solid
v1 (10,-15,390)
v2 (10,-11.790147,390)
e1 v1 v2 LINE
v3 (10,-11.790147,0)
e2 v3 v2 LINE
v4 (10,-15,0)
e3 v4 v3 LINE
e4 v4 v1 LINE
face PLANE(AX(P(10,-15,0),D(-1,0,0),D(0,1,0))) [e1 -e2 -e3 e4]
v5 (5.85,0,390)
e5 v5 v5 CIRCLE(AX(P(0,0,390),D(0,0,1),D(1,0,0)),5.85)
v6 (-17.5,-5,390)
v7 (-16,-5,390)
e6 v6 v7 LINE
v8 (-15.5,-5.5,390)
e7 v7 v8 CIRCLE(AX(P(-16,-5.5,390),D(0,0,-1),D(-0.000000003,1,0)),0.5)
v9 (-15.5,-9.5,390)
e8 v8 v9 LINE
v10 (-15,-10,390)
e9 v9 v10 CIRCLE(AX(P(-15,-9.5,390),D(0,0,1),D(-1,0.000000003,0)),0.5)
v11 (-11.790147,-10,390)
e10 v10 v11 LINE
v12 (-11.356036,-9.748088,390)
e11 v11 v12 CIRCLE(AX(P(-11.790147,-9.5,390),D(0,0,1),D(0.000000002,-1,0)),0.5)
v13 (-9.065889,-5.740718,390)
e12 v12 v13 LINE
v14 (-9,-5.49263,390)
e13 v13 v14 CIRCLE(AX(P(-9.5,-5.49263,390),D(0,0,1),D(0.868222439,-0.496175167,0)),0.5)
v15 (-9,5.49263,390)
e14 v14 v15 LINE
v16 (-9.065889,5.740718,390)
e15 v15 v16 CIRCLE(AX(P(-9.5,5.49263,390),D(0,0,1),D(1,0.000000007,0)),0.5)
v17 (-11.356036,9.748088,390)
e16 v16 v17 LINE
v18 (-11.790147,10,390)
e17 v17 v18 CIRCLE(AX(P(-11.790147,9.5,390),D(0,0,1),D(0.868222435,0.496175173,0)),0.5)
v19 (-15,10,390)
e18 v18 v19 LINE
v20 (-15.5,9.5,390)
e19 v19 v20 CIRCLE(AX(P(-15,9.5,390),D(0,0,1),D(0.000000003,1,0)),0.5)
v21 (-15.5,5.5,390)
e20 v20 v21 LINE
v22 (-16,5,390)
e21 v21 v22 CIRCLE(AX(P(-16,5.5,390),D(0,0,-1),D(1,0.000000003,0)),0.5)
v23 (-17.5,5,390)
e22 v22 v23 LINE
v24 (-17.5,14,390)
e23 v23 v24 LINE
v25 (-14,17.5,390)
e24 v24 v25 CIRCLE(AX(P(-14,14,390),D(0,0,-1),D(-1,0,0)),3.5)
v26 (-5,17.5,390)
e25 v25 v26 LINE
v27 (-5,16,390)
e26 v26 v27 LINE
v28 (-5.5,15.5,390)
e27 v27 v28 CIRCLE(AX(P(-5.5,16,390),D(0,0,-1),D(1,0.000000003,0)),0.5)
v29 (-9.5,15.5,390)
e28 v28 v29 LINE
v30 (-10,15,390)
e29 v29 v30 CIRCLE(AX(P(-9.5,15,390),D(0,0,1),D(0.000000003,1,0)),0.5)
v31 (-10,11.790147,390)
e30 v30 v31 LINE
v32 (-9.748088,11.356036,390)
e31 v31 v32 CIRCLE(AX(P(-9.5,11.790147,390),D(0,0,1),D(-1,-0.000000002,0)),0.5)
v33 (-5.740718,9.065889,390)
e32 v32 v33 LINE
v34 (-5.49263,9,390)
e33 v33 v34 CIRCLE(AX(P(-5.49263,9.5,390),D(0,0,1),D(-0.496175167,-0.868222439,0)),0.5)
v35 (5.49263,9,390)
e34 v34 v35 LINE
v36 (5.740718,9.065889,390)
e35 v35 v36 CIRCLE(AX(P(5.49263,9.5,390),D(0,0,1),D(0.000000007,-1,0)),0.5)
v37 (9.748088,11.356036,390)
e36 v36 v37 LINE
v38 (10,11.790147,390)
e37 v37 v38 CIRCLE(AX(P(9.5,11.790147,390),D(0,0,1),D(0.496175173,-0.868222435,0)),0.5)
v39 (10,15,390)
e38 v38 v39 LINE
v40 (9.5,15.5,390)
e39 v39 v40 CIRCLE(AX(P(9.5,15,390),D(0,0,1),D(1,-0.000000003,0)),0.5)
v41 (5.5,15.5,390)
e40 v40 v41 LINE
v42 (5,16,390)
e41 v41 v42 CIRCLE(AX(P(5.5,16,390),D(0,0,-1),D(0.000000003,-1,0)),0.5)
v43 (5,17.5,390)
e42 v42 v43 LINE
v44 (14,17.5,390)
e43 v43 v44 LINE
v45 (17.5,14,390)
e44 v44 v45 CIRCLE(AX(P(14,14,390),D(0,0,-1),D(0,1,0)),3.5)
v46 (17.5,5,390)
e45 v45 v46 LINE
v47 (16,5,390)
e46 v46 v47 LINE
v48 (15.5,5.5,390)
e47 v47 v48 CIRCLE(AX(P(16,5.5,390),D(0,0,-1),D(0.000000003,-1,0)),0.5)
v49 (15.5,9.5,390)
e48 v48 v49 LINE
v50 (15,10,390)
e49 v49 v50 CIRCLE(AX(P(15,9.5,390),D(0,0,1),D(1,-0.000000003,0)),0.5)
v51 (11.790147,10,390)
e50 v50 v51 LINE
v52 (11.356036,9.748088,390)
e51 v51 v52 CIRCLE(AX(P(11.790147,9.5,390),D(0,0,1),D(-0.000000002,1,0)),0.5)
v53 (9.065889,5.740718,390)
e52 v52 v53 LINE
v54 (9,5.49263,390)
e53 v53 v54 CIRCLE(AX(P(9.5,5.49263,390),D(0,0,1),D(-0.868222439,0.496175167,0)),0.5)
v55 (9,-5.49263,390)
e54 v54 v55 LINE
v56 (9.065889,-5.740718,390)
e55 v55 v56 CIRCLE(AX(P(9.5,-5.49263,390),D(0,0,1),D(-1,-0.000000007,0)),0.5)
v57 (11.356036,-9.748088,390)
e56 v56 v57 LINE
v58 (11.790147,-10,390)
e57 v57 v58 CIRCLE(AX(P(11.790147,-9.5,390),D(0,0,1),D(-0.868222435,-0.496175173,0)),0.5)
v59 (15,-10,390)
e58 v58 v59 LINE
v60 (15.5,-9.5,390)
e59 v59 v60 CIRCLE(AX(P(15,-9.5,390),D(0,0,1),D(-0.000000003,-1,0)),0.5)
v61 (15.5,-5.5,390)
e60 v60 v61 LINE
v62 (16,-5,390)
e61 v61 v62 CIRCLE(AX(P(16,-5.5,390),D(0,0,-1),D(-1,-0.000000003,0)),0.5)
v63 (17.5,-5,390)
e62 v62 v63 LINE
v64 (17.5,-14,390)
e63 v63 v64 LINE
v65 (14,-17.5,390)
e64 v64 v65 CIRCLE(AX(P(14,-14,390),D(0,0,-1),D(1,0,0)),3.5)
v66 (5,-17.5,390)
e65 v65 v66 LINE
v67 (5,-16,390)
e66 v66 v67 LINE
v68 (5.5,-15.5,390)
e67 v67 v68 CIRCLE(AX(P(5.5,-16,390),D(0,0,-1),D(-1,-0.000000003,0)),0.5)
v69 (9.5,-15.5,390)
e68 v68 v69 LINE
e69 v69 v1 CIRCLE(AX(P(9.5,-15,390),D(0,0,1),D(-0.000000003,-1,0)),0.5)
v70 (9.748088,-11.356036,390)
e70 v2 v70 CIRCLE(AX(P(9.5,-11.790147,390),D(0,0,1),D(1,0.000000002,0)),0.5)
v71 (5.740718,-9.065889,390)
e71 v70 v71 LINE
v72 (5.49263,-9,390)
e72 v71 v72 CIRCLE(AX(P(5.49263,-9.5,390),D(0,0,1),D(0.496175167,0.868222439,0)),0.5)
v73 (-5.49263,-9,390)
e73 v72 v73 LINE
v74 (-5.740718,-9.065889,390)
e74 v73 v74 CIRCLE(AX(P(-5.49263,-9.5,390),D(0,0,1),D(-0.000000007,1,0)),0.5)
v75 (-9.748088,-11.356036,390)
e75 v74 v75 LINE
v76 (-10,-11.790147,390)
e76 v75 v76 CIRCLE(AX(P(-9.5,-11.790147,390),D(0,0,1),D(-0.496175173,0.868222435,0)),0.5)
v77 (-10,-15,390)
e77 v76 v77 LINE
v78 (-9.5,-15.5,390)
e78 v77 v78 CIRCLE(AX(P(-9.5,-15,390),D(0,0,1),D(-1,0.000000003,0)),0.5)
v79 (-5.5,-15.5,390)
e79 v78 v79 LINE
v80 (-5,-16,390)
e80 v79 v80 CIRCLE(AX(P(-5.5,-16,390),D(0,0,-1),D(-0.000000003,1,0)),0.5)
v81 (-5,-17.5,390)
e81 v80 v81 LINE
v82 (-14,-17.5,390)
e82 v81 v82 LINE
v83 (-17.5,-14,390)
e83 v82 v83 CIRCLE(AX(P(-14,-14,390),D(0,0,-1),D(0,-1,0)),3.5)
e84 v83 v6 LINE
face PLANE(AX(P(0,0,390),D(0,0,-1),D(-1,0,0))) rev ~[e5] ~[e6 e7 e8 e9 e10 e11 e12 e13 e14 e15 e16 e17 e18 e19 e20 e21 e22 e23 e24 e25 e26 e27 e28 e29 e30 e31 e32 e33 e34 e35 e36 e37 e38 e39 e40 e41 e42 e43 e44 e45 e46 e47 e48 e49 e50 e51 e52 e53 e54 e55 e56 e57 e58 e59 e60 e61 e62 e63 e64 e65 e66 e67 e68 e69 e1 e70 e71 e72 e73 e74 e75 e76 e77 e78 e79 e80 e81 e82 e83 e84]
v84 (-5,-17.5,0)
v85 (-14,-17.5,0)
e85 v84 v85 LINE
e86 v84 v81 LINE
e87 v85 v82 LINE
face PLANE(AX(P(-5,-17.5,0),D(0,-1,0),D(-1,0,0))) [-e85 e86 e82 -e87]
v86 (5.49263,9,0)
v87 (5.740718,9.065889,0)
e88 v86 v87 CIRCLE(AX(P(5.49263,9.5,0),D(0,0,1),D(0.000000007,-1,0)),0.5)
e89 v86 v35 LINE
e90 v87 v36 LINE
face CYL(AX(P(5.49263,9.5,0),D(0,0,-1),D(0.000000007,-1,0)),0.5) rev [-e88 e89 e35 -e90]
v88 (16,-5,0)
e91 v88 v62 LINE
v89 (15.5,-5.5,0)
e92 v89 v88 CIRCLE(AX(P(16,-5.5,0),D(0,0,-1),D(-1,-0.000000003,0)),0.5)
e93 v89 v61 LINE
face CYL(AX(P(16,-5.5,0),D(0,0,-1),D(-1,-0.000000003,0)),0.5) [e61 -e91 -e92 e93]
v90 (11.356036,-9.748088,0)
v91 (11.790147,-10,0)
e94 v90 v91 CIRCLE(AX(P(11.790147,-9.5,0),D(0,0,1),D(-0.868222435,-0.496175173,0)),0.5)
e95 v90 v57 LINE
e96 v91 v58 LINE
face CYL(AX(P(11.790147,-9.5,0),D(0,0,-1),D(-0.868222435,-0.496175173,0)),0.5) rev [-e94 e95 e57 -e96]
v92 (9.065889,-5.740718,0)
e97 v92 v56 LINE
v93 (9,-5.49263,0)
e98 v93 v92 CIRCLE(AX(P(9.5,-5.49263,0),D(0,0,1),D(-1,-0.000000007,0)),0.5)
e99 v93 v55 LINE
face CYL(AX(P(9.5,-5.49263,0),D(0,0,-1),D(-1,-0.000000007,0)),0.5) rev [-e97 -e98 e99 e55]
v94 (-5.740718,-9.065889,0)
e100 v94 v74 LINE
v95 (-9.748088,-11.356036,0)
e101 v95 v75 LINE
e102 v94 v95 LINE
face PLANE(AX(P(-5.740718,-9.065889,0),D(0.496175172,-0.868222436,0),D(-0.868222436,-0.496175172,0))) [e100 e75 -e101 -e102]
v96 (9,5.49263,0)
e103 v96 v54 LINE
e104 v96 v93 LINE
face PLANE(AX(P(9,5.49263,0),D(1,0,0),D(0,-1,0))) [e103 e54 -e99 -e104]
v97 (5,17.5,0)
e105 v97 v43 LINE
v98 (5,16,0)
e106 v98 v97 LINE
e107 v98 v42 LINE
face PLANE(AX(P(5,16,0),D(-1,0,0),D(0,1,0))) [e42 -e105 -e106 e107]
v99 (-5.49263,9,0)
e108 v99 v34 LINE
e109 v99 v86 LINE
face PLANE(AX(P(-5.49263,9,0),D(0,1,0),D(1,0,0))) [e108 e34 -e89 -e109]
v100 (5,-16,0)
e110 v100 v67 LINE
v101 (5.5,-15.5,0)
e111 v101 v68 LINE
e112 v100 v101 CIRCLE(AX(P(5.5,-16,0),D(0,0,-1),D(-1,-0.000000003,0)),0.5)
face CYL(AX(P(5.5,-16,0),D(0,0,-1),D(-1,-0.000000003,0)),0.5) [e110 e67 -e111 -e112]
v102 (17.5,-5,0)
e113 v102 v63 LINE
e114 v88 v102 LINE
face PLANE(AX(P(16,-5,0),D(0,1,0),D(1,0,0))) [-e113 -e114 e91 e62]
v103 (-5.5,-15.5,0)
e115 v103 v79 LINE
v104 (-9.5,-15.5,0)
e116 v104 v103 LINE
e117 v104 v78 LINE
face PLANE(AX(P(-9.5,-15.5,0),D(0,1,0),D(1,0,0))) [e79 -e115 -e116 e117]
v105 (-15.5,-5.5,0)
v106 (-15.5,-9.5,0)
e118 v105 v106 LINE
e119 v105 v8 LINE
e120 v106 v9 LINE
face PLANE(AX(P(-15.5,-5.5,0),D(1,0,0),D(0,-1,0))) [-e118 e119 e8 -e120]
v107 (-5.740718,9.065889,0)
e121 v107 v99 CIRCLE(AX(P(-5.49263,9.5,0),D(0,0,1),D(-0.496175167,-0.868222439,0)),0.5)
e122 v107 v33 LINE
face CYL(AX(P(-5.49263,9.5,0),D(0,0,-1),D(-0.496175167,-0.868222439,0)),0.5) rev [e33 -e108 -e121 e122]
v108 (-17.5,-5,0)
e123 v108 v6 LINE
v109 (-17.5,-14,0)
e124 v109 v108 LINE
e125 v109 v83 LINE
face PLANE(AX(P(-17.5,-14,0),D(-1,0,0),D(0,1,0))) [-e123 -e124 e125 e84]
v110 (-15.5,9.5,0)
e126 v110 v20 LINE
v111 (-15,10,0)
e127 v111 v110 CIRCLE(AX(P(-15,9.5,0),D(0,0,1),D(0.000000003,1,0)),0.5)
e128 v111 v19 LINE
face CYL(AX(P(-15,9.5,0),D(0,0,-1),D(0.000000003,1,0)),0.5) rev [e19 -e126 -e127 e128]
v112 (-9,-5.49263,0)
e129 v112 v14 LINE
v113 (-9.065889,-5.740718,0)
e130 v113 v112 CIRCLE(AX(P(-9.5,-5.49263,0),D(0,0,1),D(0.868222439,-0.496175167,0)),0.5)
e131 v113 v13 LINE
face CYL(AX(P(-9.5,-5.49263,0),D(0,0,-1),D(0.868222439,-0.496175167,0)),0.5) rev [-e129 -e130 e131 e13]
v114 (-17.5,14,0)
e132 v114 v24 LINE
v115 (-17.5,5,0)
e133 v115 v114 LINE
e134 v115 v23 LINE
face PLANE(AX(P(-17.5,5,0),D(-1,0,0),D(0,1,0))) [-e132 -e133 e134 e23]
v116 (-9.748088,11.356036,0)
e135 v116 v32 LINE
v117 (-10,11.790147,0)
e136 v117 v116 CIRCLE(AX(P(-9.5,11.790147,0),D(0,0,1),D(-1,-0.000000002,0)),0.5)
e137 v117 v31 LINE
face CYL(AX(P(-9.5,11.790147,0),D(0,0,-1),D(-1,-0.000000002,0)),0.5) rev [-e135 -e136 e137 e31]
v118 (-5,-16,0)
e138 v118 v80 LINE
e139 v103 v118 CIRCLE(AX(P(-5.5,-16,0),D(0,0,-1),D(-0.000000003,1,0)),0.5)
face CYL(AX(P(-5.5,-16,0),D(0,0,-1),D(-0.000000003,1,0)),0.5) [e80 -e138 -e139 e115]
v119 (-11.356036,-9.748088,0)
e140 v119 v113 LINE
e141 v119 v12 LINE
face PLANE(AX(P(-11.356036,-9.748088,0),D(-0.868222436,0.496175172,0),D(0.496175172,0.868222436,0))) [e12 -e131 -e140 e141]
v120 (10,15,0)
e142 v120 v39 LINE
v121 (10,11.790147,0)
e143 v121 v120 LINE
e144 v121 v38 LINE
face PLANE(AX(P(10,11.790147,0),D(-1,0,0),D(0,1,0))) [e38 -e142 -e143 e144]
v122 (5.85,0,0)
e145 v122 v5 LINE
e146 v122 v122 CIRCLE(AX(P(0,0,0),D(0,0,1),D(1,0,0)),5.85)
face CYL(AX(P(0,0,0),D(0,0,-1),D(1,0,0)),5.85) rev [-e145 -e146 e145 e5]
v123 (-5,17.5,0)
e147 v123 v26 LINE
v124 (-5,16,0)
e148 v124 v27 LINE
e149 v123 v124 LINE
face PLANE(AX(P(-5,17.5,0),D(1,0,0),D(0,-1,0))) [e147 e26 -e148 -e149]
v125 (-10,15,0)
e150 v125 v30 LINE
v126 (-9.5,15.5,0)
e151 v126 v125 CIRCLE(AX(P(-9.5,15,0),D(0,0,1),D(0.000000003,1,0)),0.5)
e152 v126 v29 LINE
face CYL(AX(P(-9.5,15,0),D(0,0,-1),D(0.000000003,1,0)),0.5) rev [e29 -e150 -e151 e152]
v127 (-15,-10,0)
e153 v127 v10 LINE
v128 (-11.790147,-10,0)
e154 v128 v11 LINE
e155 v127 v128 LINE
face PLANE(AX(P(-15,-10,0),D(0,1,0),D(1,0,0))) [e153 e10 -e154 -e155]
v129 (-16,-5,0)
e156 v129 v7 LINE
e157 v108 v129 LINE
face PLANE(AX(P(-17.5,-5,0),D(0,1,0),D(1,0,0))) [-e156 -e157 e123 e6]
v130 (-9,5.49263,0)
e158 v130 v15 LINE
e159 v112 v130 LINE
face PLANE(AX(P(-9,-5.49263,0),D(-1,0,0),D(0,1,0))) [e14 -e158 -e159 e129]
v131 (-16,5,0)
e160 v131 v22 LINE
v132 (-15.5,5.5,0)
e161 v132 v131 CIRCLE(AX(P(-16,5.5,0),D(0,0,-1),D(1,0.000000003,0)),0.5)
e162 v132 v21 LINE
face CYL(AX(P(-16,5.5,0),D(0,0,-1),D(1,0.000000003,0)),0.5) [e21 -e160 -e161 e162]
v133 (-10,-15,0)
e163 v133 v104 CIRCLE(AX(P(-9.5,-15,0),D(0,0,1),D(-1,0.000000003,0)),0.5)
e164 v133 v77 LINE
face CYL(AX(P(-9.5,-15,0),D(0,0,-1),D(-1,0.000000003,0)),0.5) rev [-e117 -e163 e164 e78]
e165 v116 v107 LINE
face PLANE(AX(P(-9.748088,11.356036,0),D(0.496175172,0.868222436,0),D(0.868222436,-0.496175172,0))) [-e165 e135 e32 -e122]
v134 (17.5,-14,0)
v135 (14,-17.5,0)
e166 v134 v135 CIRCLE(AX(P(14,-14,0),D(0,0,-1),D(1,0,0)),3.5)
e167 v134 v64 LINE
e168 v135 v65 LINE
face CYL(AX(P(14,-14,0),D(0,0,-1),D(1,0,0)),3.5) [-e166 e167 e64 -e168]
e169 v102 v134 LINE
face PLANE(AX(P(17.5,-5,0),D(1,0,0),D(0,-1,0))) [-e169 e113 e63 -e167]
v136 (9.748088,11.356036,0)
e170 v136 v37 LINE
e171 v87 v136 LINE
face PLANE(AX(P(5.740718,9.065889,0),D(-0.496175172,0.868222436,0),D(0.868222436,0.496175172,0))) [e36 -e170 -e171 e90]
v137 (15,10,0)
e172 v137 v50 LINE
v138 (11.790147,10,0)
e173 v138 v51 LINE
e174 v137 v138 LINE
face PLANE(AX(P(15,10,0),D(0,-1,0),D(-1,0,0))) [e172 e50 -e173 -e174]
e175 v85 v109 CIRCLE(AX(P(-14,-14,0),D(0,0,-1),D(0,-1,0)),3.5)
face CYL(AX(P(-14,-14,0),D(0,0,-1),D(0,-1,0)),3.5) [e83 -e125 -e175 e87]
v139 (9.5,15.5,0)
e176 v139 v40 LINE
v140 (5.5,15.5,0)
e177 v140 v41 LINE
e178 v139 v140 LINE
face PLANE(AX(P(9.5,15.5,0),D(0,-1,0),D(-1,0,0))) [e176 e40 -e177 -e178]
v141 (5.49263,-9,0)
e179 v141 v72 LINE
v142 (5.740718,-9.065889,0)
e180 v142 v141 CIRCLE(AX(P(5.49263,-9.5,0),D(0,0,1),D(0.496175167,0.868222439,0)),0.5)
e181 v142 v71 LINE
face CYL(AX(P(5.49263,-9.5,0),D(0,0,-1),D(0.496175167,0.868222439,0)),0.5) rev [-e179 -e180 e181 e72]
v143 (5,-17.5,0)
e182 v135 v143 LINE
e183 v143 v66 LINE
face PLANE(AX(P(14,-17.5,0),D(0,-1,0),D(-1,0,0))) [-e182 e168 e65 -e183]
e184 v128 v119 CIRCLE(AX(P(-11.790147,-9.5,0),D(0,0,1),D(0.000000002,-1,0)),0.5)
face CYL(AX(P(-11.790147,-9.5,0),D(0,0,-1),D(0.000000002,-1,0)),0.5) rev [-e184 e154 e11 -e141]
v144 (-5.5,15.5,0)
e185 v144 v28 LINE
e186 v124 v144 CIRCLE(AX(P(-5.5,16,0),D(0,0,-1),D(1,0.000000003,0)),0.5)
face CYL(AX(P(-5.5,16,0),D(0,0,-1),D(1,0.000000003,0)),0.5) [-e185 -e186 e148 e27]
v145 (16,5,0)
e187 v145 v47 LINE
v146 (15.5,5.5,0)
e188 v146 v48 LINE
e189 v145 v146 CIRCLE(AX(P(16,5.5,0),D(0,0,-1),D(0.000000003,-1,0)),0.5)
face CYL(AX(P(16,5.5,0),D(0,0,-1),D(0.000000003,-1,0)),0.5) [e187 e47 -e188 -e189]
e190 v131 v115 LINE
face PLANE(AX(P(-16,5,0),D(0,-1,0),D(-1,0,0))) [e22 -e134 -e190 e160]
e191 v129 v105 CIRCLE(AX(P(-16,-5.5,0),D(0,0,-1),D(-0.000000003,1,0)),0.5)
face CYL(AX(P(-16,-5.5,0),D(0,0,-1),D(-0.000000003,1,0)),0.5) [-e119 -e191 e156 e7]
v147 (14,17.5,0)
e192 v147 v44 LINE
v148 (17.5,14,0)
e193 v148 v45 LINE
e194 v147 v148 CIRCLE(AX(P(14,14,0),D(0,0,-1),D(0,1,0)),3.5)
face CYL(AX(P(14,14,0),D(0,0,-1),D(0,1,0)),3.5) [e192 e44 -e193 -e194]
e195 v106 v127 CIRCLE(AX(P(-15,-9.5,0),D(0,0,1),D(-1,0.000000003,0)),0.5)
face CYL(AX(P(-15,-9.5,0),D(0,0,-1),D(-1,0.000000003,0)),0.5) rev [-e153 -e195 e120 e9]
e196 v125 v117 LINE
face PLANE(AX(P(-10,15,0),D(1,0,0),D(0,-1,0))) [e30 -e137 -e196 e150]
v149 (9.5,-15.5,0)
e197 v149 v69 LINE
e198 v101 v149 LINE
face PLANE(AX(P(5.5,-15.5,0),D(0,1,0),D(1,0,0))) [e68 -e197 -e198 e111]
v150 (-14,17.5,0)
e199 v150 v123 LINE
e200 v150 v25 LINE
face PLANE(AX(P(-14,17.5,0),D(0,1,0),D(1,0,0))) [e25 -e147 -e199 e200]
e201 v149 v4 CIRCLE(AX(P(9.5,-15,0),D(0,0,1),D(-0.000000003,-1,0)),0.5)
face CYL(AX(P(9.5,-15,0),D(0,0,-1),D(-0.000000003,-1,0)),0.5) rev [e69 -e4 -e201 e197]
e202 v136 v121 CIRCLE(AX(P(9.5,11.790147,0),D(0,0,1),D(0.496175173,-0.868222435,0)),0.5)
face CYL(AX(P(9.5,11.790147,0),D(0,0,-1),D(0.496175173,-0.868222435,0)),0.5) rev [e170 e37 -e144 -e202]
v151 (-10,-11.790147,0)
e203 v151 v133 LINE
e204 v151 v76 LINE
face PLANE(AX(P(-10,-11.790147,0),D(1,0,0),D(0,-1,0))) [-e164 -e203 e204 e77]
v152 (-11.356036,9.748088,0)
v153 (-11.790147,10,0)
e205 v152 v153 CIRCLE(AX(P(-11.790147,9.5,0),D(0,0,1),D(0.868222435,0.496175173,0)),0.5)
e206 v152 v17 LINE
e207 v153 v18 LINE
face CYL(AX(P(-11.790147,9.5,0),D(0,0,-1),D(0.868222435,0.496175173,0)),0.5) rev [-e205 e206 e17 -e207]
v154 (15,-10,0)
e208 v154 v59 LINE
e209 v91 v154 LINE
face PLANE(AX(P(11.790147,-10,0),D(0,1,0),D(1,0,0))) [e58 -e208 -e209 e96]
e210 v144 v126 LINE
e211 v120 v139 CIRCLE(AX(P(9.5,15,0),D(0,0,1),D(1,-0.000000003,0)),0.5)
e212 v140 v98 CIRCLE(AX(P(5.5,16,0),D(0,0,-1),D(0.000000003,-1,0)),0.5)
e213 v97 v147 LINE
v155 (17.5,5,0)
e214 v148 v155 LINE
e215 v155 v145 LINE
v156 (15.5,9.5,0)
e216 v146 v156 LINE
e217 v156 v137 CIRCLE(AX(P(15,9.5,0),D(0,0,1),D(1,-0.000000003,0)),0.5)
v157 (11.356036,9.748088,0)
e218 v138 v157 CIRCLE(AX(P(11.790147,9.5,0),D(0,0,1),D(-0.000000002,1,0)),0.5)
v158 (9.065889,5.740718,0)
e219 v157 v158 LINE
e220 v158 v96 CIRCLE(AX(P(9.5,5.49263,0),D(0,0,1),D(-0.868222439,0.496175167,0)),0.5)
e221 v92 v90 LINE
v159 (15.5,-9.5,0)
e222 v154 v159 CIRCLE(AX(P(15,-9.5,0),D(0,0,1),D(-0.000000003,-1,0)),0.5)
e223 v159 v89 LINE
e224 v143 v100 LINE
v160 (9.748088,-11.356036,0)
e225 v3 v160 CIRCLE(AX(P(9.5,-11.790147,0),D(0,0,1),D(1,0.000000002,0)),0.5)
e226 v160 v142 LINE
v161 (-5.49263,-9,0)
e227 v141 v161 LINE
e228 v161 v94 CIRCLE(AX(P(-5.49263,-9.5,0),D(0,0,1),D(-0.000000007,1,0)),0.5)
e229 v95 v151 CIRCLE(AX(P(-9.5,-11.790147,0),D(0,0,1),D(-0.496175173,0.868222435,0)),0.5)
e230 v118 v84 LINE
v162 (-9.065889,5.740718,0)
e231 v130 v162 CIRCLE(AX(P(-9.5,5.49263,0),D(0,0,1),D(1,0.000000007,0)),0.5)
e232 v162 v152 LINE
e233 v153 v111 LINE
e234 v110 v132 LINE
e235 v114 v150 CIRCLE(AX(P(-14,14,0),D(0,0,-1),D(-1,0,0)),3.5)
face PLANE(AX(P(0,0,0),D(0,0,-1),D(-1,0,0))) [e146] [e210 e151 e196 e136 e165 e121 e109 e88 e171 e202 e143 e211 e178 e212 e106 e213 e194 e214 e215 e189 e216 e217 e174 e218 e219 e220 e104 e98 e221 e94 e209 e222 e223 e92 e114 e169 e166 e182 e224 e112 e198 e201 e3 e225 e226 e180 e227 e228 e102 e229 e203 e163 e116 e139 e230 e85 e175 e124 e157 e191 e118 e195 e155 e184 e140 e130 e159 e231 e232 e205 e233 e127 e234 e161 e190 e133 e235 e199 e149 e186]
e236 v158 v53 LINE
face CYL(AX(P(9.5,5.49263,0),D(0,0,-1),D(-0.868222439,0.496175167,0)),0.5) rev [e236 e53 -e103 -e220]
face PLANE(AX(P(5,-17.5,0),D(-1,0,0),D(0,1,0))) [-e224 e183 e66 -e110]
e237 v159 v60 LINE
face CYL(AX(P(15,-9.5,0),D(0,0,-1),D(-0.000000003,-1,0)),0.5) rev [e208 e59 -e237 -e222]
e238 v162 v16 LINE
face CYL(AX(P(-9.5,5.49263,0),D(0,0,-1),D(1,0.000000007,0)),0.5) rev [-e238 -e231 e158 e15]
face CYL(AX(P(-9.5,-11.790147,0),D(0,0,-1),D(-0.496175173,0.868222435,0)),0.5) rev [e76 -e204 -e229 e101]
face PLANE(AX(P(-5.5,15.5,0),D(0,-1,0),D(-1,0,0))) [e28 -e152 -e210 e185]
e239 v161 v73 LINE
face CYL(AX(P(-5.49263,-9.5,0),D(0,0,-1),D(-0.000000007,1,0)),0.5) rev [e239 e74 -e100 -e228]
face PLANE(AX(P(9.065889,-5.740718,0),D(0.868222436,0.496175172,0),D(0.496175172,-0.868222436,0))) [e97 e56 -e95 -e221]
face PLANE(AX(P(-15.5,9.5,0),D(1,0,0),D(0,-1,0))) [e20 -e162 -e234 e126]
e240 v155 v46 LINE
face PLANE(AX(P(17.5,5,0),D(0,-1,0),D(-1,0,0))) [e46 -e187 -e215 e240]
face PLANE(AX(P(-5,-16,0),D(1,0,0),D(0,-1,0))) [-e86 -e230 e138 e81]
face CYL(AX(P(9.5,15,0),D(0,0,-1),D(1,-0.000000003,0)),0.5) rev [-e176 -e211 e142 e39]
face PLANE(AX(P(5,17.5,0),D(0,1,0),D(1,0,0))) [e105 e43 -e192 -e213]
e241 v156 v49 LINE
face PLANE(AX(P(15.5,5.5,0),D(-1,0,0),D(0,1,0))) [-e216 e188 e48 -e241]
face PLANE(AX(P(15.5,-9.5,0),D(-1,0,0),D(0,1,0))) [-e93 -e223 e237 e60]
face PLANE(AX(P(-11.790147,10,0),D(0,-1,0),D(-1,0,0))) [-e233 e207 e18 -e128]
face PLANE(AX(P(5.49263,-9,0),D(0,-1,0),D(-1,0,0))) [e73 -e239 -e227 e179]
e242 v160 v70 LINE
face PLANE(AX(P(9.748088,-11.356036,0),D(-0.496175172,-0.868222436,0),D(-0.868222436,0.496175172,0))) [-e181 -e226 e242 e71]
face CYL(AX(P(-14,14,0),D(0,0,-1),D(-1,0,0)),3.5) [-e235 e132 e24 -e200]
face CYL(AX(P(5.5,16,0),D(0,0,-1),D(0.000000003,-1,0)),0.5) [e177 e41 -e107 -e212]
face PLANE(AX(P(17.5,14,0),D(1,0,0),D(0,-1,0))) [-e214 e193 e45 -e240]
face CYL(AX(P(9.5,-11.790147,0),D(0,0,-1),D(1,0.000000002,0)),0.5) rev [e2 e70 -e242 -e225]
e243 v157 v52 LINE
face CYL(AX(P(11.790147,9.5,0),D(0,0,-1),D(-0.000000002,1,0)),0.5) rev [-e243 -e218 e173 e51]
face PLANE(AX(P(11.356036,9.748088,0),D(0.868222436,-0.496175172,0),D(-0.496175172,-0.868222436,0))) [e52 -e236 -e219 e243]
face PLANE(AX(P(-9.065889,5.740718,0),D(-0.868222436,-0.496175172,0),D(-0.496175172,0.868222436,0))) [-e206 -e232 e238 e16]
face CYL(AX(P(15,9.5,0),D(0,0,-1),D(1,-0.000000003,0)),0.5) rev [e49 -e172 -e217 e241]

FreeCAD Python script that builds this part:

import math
import FreeCAD as App
import Part
import Sketcher
from FreeCAD import Vector

doc = App.newDocument("Part")
body = doc.addObject("PartDesign::Body", "Body")

sketch1 = body.newObject("Sketcher::SketchObject", "Sketch")
sketch1.AttachmentSupport = (doc.getObject("XY_Plane"), [""])
sketch1.MapMode = "FlatFace"
sketch1.addGeometry(Part.LineSegment(Vector(-16, -5, 0), Vector(-17.5, -5, 0)), False)
sketch1.addGeometry(Part.LineSegment(Vector(-17.5, -5, 0), Vector(-17.5, -14, 0)), False)
sketch1.addGeometry(Part.ArcOfCircle(Part.Circle(Vector(-14, -14, 0), Vector(0, 0, 1), 3.5), math.radians(-180), math.radians(-90)), False)
sketch1.addGeometry(Part.LineSegment(Vector(-14, -17.5, 0), Vector(-5, -17.5, 0)), False)
sketch1.addGeometry(Part.LineSegment(Vector(-5, -17.5, 0), Vector(-5, -16, 0)), False)
sketch1.addGeometry(Part.ArcOfCircle(Part.Circle(Vector(-5.5, -16, 0), Vector(0, 0, 1), 0.5), math.radians(0), math.radians(90)), False)
sketch1.addGeometry(Part.LineSegment(Vector(-5.5, -15.5, 0), Vector(-9.5, -15.5, 0)), False)
sketch1.addGeometry(Part.ArcOfCircle(Part.Circle(Vector(-9.5, -15, 0), Vector(0, 0, 1), 0.5), math.radians(180), math.radians(270)), False)
sketch1.addGeometry(Part.LineSegment(Vector(-10, -15, 0), Vector(-10, -11.790147, 0)), False)
sketch1.addGeometry(Part.ArcOfCircle(Part.Circle(Vector(-9.5, -11.790147, 0), Vector(0, 0, 1), 0.5), math.radians(119.747272), math.radians(180)), False)
sketch1.addGeometry(Part.LineSegment(Vector(-9.748088, -11.356036, 0), Vector(-5.740718, -9.065889, 0)), False)
sketch1.addGeometry(Part.ArcOfCircle(Part.Circle(Vector(-5.49263, -9.5, 0), Vector(0, 0, 1), 0.5), math.radians(90), math.radians(119.747272)), False)
sketch1.addGeometry(Part.LineSegment(Vector(-5.49263, -9, 0), Vector(5.49263, -9, 0)), False)
sketch1.addGeometry(Part.ArcOfCircle(Part.Circle(Vector(5.49263, -9.5, 0), Vector(0, 0, 1), 0.5), math.radians(60.252728), math.radians(90)), False)
sketch1.addGeometry(Part.LineSegment(Vector(5.740718, -9.065889, 0), Vector(9.748088, -11.356036, 0)), False)
sketch1.addGeometry(Part.ArcOfCircle(Part.Circle(Vector(9.5, -11.790147, 0), Vector(0, 0, 1), 0.5), math.radians(0), math.radians(60.252728)), False)
sketch1.addGeometry(Part.LineSegment(Vector(10, -11.790147, 0), Vector(10, -15, 0)), False)
sketch1.addGeometry(Part.ArcOfCircle(Part.Circle(Vector(9.5, -15, 0), Vector(0, 0, 1), 0.5), math.radians(-90), math.radians(0)), False)
sketch1.addGeometry(Part.LineSegment(Vector(9.5, -15.5, 0), Vector(5.5, -15.5, 0)), False)
sketch1.addGeometry(Part.ArcOfCircle(Part.Circle(Vector(5.5, -16, 0), Vector(0, 0, 1), 0.5), math.radians(90), math.radians(180)), False)
sketch1.addGeometry(Part.LineSegment(Vector(5, -16, 0), Vector(5, -17.5, 0)), False)
sketch1.addGeometry(Part.LineSegment(Vector(5, -17.5, 0), Vector(14, -17.5, 0)), False)
sketch1.addGeometry(Part.ArcOfCircle(Part.Circle(Vector(14, -14, 0), Vector(0, 0, 1), 3.5), math.radians(-90), math.radians(0)), False)
sketch1.addGeometry(Part.LineSegment(Vector(17.5, -14, 0), Vector(17.5, -5, 0)), False)
sketch1.addGeometry(Part.LineSegment(Vector(17.5, -5, 0), Vector(16, -5, 0)), False)
sketch1.addGeometry(Part.ArcOfCircle(Part.Circle(Vector(16, -5.5, 0), Vector(0, 0, 1), 0.5), math.radians(90), math.radians(180)), False)
sketch1.addGeometry(Part.LineSegment(Vector(15.5, -5.5, 0), Vector(15.5, -9.5, 0)), False)
sketch1.addGeometry(Part.ArcOfCircle(Part.Circle(Vector(15, -9.5, 0), Vector(0, 0, 1), 0.5), math.radians(-90), math.radians(0)), False)
sketch1.addGeometry(Part.LineSegment(Vector(15, -10, 0), Vector(11.790147, -10, 0)), False)
sketch1.addGeometry(Part.ArcOfCircle(Part.Circle(Vector(11.790147, -9.5, 0), Vector(0, 0, 1), 0.5), math.radians(-150.252728), math.radians(-90)), False)
sketch1.addGeometry(Part.LineSegment(Vector(11.356036, -9.748088, 0), Vector(9.065889, -5.740718, 0)), False)
sketch1.addGeometry(Part.ArcOfCircle(Part.Circle(Vector(9.5, -5.49263, 0), Vector(0, 0, 1), 0.5), math.radians(-180), math.radians(-150.252728)), False)
sketch1.addGeometry(Part.LineSegment(Vector(9, -5.49263, 0), Vector(9, 5.49263, 0)), False)
sketch1.addGeometry(Part.ArcOfCircle(Part.Circle(Vector(9.5, 5.49263, 0), Vector(0, 0, 1), 0.5), math.radians(150.252728), math.radians(180)), False)
sketch1.addGeometry(Part.LineSegment(Vector(9.065889, 5.740718, 0), Vector(11.356036, 9.748088, 0)), False)
sketch1.addGeometry(Part.ArcOfCircle(Part.Circle(Vector(11.790147, 9.5, 0), Vector(0, 0, 1), 0.5), math.radians(90), math.radians(150.252728)), False)
sketch1.addGeometry(Part.LineSegment(Vector(11.790147, 10, 0), Vector(15, 10, 0)), False)
sketch1.addGeometry(Part.ArcOfCircle(Part.Circle(Vector(15, 9.5, 0), Vector(0, 0, 1), 0.5), math.radians(0), math.radians(90)), False)
sketch1.addGeometry(Part.LineSegment(Vector(15.5, 9.5, 0), Vector(15.5, 5.5, 0)), False)
sketch1.addGeometry(Part.ArcOfCircle(Part.Circle(Vector(16, 5.5, 0), Vector(0, 0, 1), 0.5), math.radians(180), math.radians(270)), False)
sketch1.addGeometry(Part.LineSegment(Vector(16, 5, 0), Vector(17.5, 5, 0)), False)
sketch1.addGeometry(Part.LineSegment(Vector(17.5, 5, 0), Vector(17.5, 14, 0)), False)
sketch1.addGeometry(Part.ArcOfCircle(Part.Circle(Vector(14, 14, 0), Vector(0, 0, 1), 3.5), math.radians(0), math.radians(90)), False)
sketch1.addGeometry(Part.LineSegment(Vector(14, 17.5, 0), Vector(5, 17.5, 0)), False)
sketch1.addGeometry(Part.LineSegment(Vector(5, 17.5, 0), Vector(5, 16, 0)), False)
sketch1.addGeometry(Part.ArcOfCircle(Part.Circle(Vector(5.5, 16, 0), Vector(0, 0, 1), 0.5), math.radians(180), math.radians(270)), False)
sketch1.addGeometry(Part.LineSegment(Vector(5.5, 15.5, 0), Vector(9.5, 15.5, 0)), False)
sketch1.addGeometry(Part.ArcOfCircle(Part.Circle(Vector(9.5, 15, 0), Vector(0, 0, 1), 0.5), math.radians(0), math.radians(90)), False)
sketch1.addGeometry(Part.LineSegment(Vector(10, 15, 0), Vector(10, 11.790147, 0)), False)
sketch1.addGeometry(Part.ArcOfCircle(Part.Circle(Vector(9.5, 11.790147, 0), Vector(0, 0, 1), 0.5), math.radians(-60.252728), math.radians(0)), False)
sketch1.addGeometry(Part.LineSegment(Vector(9.748088, 11.356036, 0), Vector(5.740718, 9.065889, 0)), False)
sketch1.addGeometry(Part.ArcOfCircle(Part.Circle(Vector(5.49263, 9.5, 0), Vector(0, 0, 1), 0.5), math.radians(-90), math.radians(-60.252728)), False)
sketch1.addGeometry(Part.LineSegment(Vector(5.49263, 9, 0), Vector(-5.49263, 9, 0)), False)
sketch1.addGeometry(Part.ArcOfCircle(Part.Circle(Vector(-5.49263, 9.5, 0), Vector(0, 0, 1), 0.5), math.radians(-119.747272), math.radians(-90)), False)
sketch1.addGeometry(Part.LineSegment(Vector(-5.740718, 9.065889, 0), Vector(-9.748088, 11.356036, 0)), False)
sketch1.addGeometry(Part.ArcOfCircle(Part.Circle(Vector(-9.5, 11.790147, 0), Vector(0, 0, 1), 0.5), math.radians(-180), math.radians(-119.747272)), False)
sketch1.addGeometry(Part.LineSegment(Vector(-10, 11.790147, 0), Vector(-10, 15, 0)), False)
sketch1.addGeometry(Part.ArcOfCircle(Part.Circle(Vector(-9.5, 15, 0), Vector(0, 0, 1), 0.5), math.radians(90), math.radians(180)), False)
sketch1.addGeometry(Part.LineSegment(Vector(-9.5, 15.5, 0), Vector(-5.5, 15.5, 0)), False)
sketch1.addGeometry(Part.ArcOfCircle(Part.Circle(Vector(-5.5, 16, 0), Vector(0, 0, 1), 0.5), math.radians(-90), math.radians(0)), False)
sketch1.addGeometry(Part.LineSegment(Vector(-5, 16, 0), Vector(-5, 17.5, 0)), False)
sketch1.addGeometry(Part.LineSegment(Vector(-5, 17.5, 0), Vector(-14, 17.5, 0)), False)
sketch1.addGeometry(Part.ArcOfCircle(Part.Circle(Vector(-14, 14, 0), Vector(0, 0, 1), 3.5), math.radians(90), math.radians(180)), False)
sketch1.addGeometry(Part.LineSegment(Vector(-17.5, 14, 0), Vector(-17.5, 5, 0)), False)
sketch1.addGeometry(Part.LineSegment(Vector(-17.5, 5, 0), Vector(-16, 5, 0)), False)
sketch1.addGeometry(Part.ArcOfCircle(Part.Circle(Vector(-16, 5.5, 0), Vector(0, 0, 1), 0.5), math.radians(-90), math.radians(0)), False)
sketch1.addGeometry(Part.LineSegment(Vector(-15.5, 5.5, 0), Vector(-15.5, 9.5, 0)), False)
sketch1.addGeometry(Part.ArcOfCircle(Part.Circle(Vector(-15, 9.5, 0), Vector(0, 0, 1), 0.5), math.radians(90), math.radians(180)), False)
sketch1.addGeometry(Part.LineSegment(Vector(-15, 10, 0), Vector(-11.790147, 10, 0)), False)
sketch1.addGeometry(Part.ArcOfCircle(Part.Circle(Vector(-11.790147, 9.5, 0), Vector(0, 0, 1), 0.5), math.radians(29.747272), math.radians(90)), False)
sketch1.addGeometry(Part.LineSegment(Vector(-11.356036, 9.748088, 0), Vector(-9.065889, 5.740718, 0)), False)
sketch1.addGeometry(Part.ArcOfCircle(Part.Circle(Vector(-9.5, 5.49263, 0), Vector(0, 0, 1), 0.5), math.radians(0), math.radians(29.747272)), False)
sketch1.addGeometry(Part.LineSegment(Vector(-9, 5.49263, 0), Vector(-9, -5.49263, 0)), False)
sketch1.addGeometry(Part.ArcOfCircle(Part.Circle(Vector(-9.5, -5.49263, 0), Vector(0, 0, 1), 0.5), math.radians(-29.747272), math.radians(0)), False)
sketch1.addGeometry(Part.LineSegment(Vector(-9.065889, -5.740718, 0), Vector(-11.356036, -9.748088, 0)), False)
sketch1.addGeometry(Part.ArcOfCircle(Part.Circle(Vector(-11.790147, -9.5, 0), Vector(0, 0, 1), 0.5), math.radians(-90), math.radians(-29.747272)), False)
sketch1.addGeometry(Part.LineSegment(Vector(-11.790147, -10, 0), Vector(-15, -10, 0)), False)
sketch1.addGeometry(Part.ArcOfCircle(Part.Circle(Vector(-15, -9.5, 0), Vector(0, 0, 1), 0.5), math.radians(180), math.radians(270)), False)
sketch1.addGeometry(Part.LineSegment(Vector(-15.5, -9.5, 0), Vector(-15.5, -5.5, 0)), False)
sketch1.addGeometry(Part.ArcOfCircle(Part.Circle(Vector(-16, -5.5, 0), Vector(0, 0, 1), 0.5), math.radians(0), math.radians(90)), False)
sketch1.addGeometry(Part.Circle(Vector(0, 0, 0), Vector(0, 0, 1), 5.85), False)
sketch1.addConstraint(Sketcher.Constraint("Coincident", 0, 2, 1, 1))
sketch1.addConstraint(Sketcher.Constraint("Tangent", 1, 2, 2, 1))
sketch1.addConstraint(Sketcher.Constraint("Tangent", 2, 2, 3, 1))
sketch1.addConstraint(Sketcher.Constraint("Coincident", 3, 2, 4, 1))
sketch1.addConstraint(Sketcher.Constraint("Tangent", 4, 2, 5, 1))
sketch1.addConstraint(Sketcher.Constraint("Tangent", 5, 2, 6, 1))
sketch1.addConstraint(Sketcher.Constraint("Tangent", 6, 2, 7, 2))
sketch1.addConstraint(Sketcher.Constraint("Tangent", 7, 1, 8, 1))
sketch1.addConstraint(Sketcher.Constraint("Tangent", 8, 2, 9, 2))
sketch1.addConstraint(Sketcher.Constraint("Tangent", 9, 1, 10, 1))
sketch1.addConstraint(Sketcher.Constraint("Tangent", 10, 2, 11, 2))
sketch1.addConstraint(Sketcher.Constraint("Tangent", 11, 1, 12, 1))
sketch1.addConstraint(Sketcher.Constraint("Tangent", 12, 2, 13, 2))
sketch1.addConstraint(Sketcher.Constraint("Tangent", 13, 1, 14, 1))
sketch1.addConstraint(Sketcher.Constraint("Tangent", 14, 2, 15, 2))
sketch1.addConstraint(Sketcher.Constraint("Tangent", 15, 1, 16, 1))
sketch1.addConstraint(Sketcher.Constraint("Tangent", 16, 2, 17, 2))
sketch1.addConstraint(Sketcher.Constraint("Tangent", 17, 1, 18, 1))
sketch1.addConstraint(Sketcher.Constraint("Tangent", 18, 2, 19, 1))
sketch1.addConstraint(Sketcher.Constraint("Tangent", 19, 2, 20, 1))
sketch1.addConstraint(Sketcher.Constraint("Coincident", 20, 2, 21, 1))
sketch1.addConstraint(Sketcher.Constraint("Tangent", 21, 2, 22, 1))
sketch1.addConstraint(Sketcher.Constraint("Tangent", 22, 2, 23, 1))
sketch1.addConstraint(Sketcher.Constraint("Coincident", 23, 2, 24, 1))
sketch1.addConstraint(Sketcher.Constraint("Tangent", 24, 2, 25, 1))
sketch1.addConstraint(Sketcher.Constraint("Tangent", 25, 2, 26, 1))
sketch1.addConstraint(Sketcher.Constraint("Tangent", 26, 2, 27, 2))
sketch1.addConstraint(Sketcher.Constraint("Tangent", 27, 1, 28, 1))
sketch1.addConstraint(Sketcher.Constraint("Tangent", 28, 2, 29, 2))
sketch1.addConstraint(Sketcher.Constraint("Tangent", 29, 1, 30, 1))
sketch1.addConstraint(Sketcher.Constraint("Tangent", 30, 2, 31, 2))
sketch1.addConstraint(Sketcher.Constraint("Tangent", 31, 1, 32, 1))
sketch1.addConstraint(Sketcher.Constraint("Tangent", 32, 2, 33, 2))
sketch1.addConstraint(Sketcher.Constraint("Tangent", 33, 1, 34, 1))
sketch1.addConstraint(Sketcher.Constraint("Tangent", 34, 2, 35, 2))
sketch1.addConstraint(Sketcher.Constraint("Tangent", 35, 1, 36, 1))
sketch1.addConstraint(Sketcher.Constraint("Tangent", 36, 2, 37, 2))
sketch1.addConstraint(Sketcher.Constraint("Tangent", 37, 1, 38, 1))
sketch1.addConstraint(Sketcher.Constraint("Tangent", 38, 2, 39, 1))
sketch1.addConstraint(Sketcher.Constraint("Tangent", 39, 2, 40, 1))
sketch1.addConstraint(Sketcher.Constraint("Coincident", 40, 2, 41, 1))
sketch1.addConstraint(Sketcher.Constraint("Tangent", 41, 2, 42, 1))
sketch1.addConstraint(Sketcher.Constraint("Tangent", 42, 2, 43, 1))
sketch1.addConstraint(Sketcher.Constraint("Coincident", 43, 2, 44, 1))
sketch1.addConstraint(Sketcher.Constraint("Tangent", 44, 2, 45, 1))
sketch1.addConstraint(Sketcher.Constraint("Tangent", 45, 2, 46, 1))
sketch1.addConstraint(Sketcher.Constraint("Tangent", 46, 2, 47, 2))
sketch1.addConstraint(Sketcher.Constraint("Tangent", 47, 1, 48, 1))
sketch1.addConstraint(Sketcher.Constraint("Tangent", 48, 2, 49, 2))
sketch1.addConstraint(Sketcher.Constraint("Tangent", 49, 1, 50, 1))
sketch1.addConstraint(Sketcher.Constraint("Tangent", 50, 2, 51, 2))
sketch1.addConstraint(Sketcher.Constraint("Tangent", 51, 1, 52, 1))
sketch1.addConstraint(Sketcher.Constraint("Tangent", 52, 2, 53, 2))
sketch1.addConstraint(Sketcher.Constraint("Tangent", 53, 1, 54, 1))
sketch1.addConstraint(Sketcher.Constraint("Tangent", 54, 2, 55, 2))
sketch1.addConstraint(Sketcher.Constraint("Tangent", 55, 1, 56, 1))
sketch1.addConstraint(Sketcher.Constraint("Tangent", 56, 2, 57, 2))
sketch1.addConstraint(Sketcher.Constraint("Tangent", 57, 1, 58, 1))
sketch1.addConstraint(Sketcher.Constraint("Tangent", 58, 2, 59, 1))
sketch1.addConstraint(Sketcher.Constraint("Tangent", 59, 2, 60, 1))
sketch1.addConstraint(Sketcher.Constraint("Coincident", 60, 2, 61, 1))
sketch1.addConstraint(Sketcher.Constraint("Tangent", 61, 2, 62, 1))
sketch1.addConstraint(Sketcher.Constraint("Tangent", 62, 2, 63, 1))
sketch1.addConstraint(Sketcher.Constraint("Coincident", 63, 2, 64, 1))
sketch1.addConstraint(Sketcher.Constraint("Tangent", 64, 2, 65, 1))
sketch1.addConstraint(Sketcher.Constraint("Tangent", 65, 2, 66, 1))
sketch1.addConstraint(Sketcher.Constraint("Tangent", 66, 2, 67, 2))
sketch1.addConstraint(Sketcher.Constraint("Tangent", 67, 1, 68, 1))
sketch1.addConstraint(Sketcher.Constraint("Tangent", 68, 2, 69, 2))
sketch1.addConstraint(Sketcher.Constraint("Tangent", 69, 1, 70, 1))
sketch1.addConstraint(Sketcher.Constraint("Tangent", 70, 2, 71, 2))
sketch1.addConstraint(Sketcher.Constraint("Tangent", 71, 1, 72, 1))
sketch1.addConstraint(Sketcher.Constraint("Tangent", 72, 2, 73, 2))
sketch1.addConstraint(Sketcher.Constraint("Tangent", 73, 1, 74, 1))
sketch1.addConstraint(Sketcher.Constraint("Tangent", 74, 2, 75, 2))
sketch1.addConstraint(Sketcher.Constraint("Tangent", 75, 1, 76, 1))
sketch1.addConstraint(Sketcher.Constraint("Tangent", 76, 2, 77, 2))
sketch1.addConstraint(Sketcher.Constraint("Tangent", 77, 1, 78, 1))
sketch1.addConstraint(Sketcher.Constraint("Tangent", 78, 2, 79, 1))
sketch1.addConstraint(Sketcher.Constraint("Tangent", 79, 2, 0, 1))
sketch1.addConstraint(Sketcher.Constraint("Horizontal", 0))
sketch1.addConstraint(Sketcher.Constraint("Vertical", 1))
sketch1.addConstraint(Sketcher.Constraint("Horizontal", 3))
sketch1.addConstraint(Sketcher.Constraint("Vertical", 4))
sketch1.addConstraint(Sketcher.Constraint("Horizontal", 6))
sketch1.addConstraint(Sketcher.Constraint("Vertical", 8))
sketch1.addConstraint(Sketcher.Constraint("Horizontal", 12))
sketch1.addConstraint(Sketcher.Constraint("Vertical", 16))
sketch1.addConstraint(Sketcher.Constraint("Horizontal", 18))
sketch1.addConstraint(Sketcher.Constraint("Vertical", 20))
sketch1.addConstraint(Sketcher.Constraint("Horizontal", 21))
sketch1.addConstraint(Sketcher.Constraint("Vertical", 23))
sketch1.addConstraint(Sketcher.Constraint("Horizontal", 24))
sketch1.addConstraint(Sketcher.Constraint("Vertical", 26))
sketch1.addConstraint(Sketcher.Constraint("Horizontal", 28))
sketch1.addConstraint(Sketcher.Constraint("Vertical", 32))
sketch1.addConstraint(Sketcher.Constraint("Horizontal", 36))
sketch1.addConstraint(Sketcher.Constraint("Vertical", 38))
sketch1.addConstraint(Sketcher.Constraint("Horizontal", 40))
sketch1.addConstraint(Sketcher.Constraint("Vertical", 41))
sketch1.addConstraint(Sketcher.Constraint("Horizontal", 43))
sketch1.addConstraint(Sketcher.Constraint("Vertical", 44))
sketch1.addConstraint(Sketcher.Constraint("Horizontal", 46))
sketch1.addConstraint(Sketcher.Constraint("Vertical", 48))
sketch1.addConstraint(Sketcher.Constraint("Horizontal", 52))
sketch1.addConstraint(Sketcher.Constraint("Vertical", 56))
sketch1.addConstraint(Sketcher.Constraint("Horizontal", 58))
sketch1.addConstraint(Sketcher.Constraint("Vertical", 60))
sketch1.addConstraint(Sketcher.Constraint("Horizontal", 61))
sketch1.addConstraint(Sketcher.Constraint("Vertical", 63))
sketch1.addConstraint(Sketcher.Constraint("Horizontal", 64))
sketch1.addConstraint(Sketcher.Constraint("Vertical", 66))
sketch1.addConstraint(Sketcher.Constraint("Horizontal", 68))
sketch1.addConstraint(Sketcher.Constraint("Vertical", 72))
sketch1.addConstraint(Sketcher.Constraint("Horizontal", 76))
sketch1.addConstraint(Sketcher.Constraint("Vertical", 78))
sketch1.addConstraint(Sketcher.Constraint("Coincident", 80, 3, -1, 1))
sketch1.addConstraint(Sketcher.Constraint("Equal", 5, 7))
sketch1.addConstraint(Sketcher.Constraint("Equal", 7, 9))
sketch1.addConstraint(Sketcher.Constraint("Equal", 9, 11))
sketch1.addConstraint(Sketcher.Constraint("Equal", 11, 13))
sketch1.addConstraint(Sketcher.Constraint("Equal", 13, 15))
sketch1.addConstraint(Sketcher.Constraint("Equal", 15, 17))
sketch1.addConstraint(Sketcher.Constraint("Equal", 17, 19))
sketch1.addConstraint(Sketcher.Constraint("Equal", 2, 22))
sketch1.addConstraint(Sketcher.Constraint("Equal", 19, 25))
sketch1.addConstraint(Sketcher.Constraint("Equal", 25, 27))
sketch1.addConstraint(Sketcher.Constraint("Equal", 27, 29))
sketch1.addConstraint(Sketcher.Constraint("Equal", 29, 31))
sketch1.addConstraint(Sketcher.Constraint("Equal", 31, 33))
sketch1.addConstraint(Sketcher.Constraint("Equal", 33, 35))
sketch1.addConstraint(Sketcher.Constraint("Equal", 35, 37))
sketch1.addConstraint(Sketcher.Constraint("Equal", 37, 39))
sketch1.addConstraint(Sketcher.Constraint("Equal", 22, 42))
sketch1.addConstraint(Sketcher.Constraint("Equal", 39, 45))
sketch1.addConstraint(Sketcher.Constraint("Equal", 45, 47))
sketch1.addConstraint(Sketcher.Constraint("Equal", 47, 49))
sketch1.addConstraint(Sketcher.Constraint("Equal", 49, 51))
sketch1.addConstraint(Sketcher.Constraint("Equal", 51, 53))
sketch1.addConstraint(Sketcher.Constraint("Equal", 53, 55))
sketch1.addConstraint(Sketcher.Constraint("Equal", 55, 57))
sketch1.addConstraint(Sketcher.Constraint("Equal", 57, 59))
sketch1.addConstraint(Sketcher.Constraint("Equal", 42, 62))
sketch1.addConstraint(Sketcher.Constraint("Equal", 59, 65))
sketch1.addConstraint(Sketcher.Constraint("Equal", 65, 67))
sketch1.addConstraint(Sketcher.Constraint("Equal", 67, 69))
sketch1.addConstraint(Sketcher.Constraint("Equal", 69, 71))
sketch1.addConstraint(Sketcher.Constraint("Equal", 71, 73))
sketch1.addConstraint(Sketcher.Constraint("Equal", 73, 75))
sketch1.addConstraint(Sketcher.Constraint("Equal", 75, 77))
sketch1.addConstraint(Sketcher.Constraint("Equal", 77, 79))
sketch1.addConstraint(Sketcher.Constraint("Symmetric", 2, 3, 42, 3, -1, 1))
sketch1.addConstraint(Sketcher.Constraint("Symmetric", 5, 3, 45, 3, -1, 1))
sketch1.addConstraint(Sketcher.Constraint("Symmetric", 9, 3, 49, 3, -1, 1))
sketch1.addConstraint(Sketcher.Constraint("Symmetric", 11, 3, 51, 3, -1, 1))
sketch1.addConstraint(Sketcher.Constraint("Symmetric", 15, 3, 55, 3, -1, 1))
sketch1.addConstraint(Sketcher.Constraint("Symmetric", 19, 3, 59, 3, -1, 1))
sketch1.addConstraint(Sketcher.Constraint("Symmetric", 22, 3, 62, 3, -1, 1))
sketch1.addConstraint(Sketcher.Constraint("Symmetric", 25, 3, 65, 3, -1, 1))
sketch1.addConstraint(Sketcher.Constraint("Symmetric", 29, 3, 69, 3, -1, 1))
sketch1.addConstraint(Sketcher.Constraint("Symmetric", 31, 3, 71, 3, -1, 1))
sketch1.addConstraint(Sketcher.Constraint("Symmetric", 35, 3, 75, 3, -1, 1))
sketch1.addConstraint(Sketcher.Constraint("Symmetric", 39, 3, 79, 3, -1, 1))
sketch1.addConstraint(Sketcher.Constraint("Symmetric", 9, 3, 15, 3, -2))
sketch1.addConstraint(Sketcher.Constraint("Symmetric", 5, 3, 19, 3, -2))
sketch1.addConstraint(Sketcher.Constraint("Symmetric", 2, 3, 22, 3, -2))
sketch1.addConstraint(Sketcher.Constraint("Symmetric", 39, 3, 65, 3, -2))
sketch1.addConstraint(Sketcher.Constraint("Symmetric", 35, 3, 69, 3, -2))
sketch1.addConstraint(Sketcher.Constraint("Perpendicular", 10, 30))
sketch1.addConstraint(Sketcher.Constraint("Perpendicular", 14, 34))
sketch1.addConstraint(Sketcher.Constraint("Perpendicular", 34, 54))
sketch1.addConstraint(Sketcher.Constraint("Perpendicular", 54, 74))
sketch1.addConstraint(Sketcher.Constraint("Horizontal", 13, 3, 27, 3))
sketch1.addConstraint(Sketcher.Constraint("Horizontal", 33, 3, 71, 3))
sketch1.addConstraint(Sketcher.Constraint("Vertical", 17, 3, 31, 3))
sketch1.addConstraint(Sketcher.Constraint("Equal", 61, 1))
sketch1.addConstraint(Sketcher.Constraint("Equal", 64, 4))
sketch1.addConstraint(Sketcher.Constraint("Equal", 76, 8))
sketch1.addConstraint(Sketcher.Constraint("Equal", 58, 26))
sketch1.addConstraint(Sketcher.Constraint("Equal", 52, 32))
sketch1.addConstraint(Sketcher.Constraint("Diameter", 80, 11.7))
sketch1.addConstraint(Sketcher.Constraint("Radius", 2, 3.5))
sketch1.addConstraint(Sketcher.Constraint("Radius", 5, 0.5))
sketch1.addConstraint(Sketcher.Constraint("DistanceX", 3, 1, 3, 2, 9.0))
sketch1.addConstraint(Sketcher.Constraint("DistanceX", 6, 2, 6, 1, 4.0))
sketch1.addConstraint(Sketcher.Constraint("DistanceX", 0, 2, 0, 1, 1.5))
sketch1.addConstraint(Sketcher.Constraint("DistanceX", 2, 3, -1, 1, 14.0))
sketch1.addConstraint(Sketcher.Constraint("DistanceX", 12, 1, 12, 2, 10.985261))
sketch1.addConstraint(Sketcher.Constraint("DistanceX", 28, 2, 28, 1, 3.209853))
pad1 = body.newObject("PartDesign::Pad", "Pad")
pad1.Profile = sketch1
pad1.Length = 390

doc.recompute()
